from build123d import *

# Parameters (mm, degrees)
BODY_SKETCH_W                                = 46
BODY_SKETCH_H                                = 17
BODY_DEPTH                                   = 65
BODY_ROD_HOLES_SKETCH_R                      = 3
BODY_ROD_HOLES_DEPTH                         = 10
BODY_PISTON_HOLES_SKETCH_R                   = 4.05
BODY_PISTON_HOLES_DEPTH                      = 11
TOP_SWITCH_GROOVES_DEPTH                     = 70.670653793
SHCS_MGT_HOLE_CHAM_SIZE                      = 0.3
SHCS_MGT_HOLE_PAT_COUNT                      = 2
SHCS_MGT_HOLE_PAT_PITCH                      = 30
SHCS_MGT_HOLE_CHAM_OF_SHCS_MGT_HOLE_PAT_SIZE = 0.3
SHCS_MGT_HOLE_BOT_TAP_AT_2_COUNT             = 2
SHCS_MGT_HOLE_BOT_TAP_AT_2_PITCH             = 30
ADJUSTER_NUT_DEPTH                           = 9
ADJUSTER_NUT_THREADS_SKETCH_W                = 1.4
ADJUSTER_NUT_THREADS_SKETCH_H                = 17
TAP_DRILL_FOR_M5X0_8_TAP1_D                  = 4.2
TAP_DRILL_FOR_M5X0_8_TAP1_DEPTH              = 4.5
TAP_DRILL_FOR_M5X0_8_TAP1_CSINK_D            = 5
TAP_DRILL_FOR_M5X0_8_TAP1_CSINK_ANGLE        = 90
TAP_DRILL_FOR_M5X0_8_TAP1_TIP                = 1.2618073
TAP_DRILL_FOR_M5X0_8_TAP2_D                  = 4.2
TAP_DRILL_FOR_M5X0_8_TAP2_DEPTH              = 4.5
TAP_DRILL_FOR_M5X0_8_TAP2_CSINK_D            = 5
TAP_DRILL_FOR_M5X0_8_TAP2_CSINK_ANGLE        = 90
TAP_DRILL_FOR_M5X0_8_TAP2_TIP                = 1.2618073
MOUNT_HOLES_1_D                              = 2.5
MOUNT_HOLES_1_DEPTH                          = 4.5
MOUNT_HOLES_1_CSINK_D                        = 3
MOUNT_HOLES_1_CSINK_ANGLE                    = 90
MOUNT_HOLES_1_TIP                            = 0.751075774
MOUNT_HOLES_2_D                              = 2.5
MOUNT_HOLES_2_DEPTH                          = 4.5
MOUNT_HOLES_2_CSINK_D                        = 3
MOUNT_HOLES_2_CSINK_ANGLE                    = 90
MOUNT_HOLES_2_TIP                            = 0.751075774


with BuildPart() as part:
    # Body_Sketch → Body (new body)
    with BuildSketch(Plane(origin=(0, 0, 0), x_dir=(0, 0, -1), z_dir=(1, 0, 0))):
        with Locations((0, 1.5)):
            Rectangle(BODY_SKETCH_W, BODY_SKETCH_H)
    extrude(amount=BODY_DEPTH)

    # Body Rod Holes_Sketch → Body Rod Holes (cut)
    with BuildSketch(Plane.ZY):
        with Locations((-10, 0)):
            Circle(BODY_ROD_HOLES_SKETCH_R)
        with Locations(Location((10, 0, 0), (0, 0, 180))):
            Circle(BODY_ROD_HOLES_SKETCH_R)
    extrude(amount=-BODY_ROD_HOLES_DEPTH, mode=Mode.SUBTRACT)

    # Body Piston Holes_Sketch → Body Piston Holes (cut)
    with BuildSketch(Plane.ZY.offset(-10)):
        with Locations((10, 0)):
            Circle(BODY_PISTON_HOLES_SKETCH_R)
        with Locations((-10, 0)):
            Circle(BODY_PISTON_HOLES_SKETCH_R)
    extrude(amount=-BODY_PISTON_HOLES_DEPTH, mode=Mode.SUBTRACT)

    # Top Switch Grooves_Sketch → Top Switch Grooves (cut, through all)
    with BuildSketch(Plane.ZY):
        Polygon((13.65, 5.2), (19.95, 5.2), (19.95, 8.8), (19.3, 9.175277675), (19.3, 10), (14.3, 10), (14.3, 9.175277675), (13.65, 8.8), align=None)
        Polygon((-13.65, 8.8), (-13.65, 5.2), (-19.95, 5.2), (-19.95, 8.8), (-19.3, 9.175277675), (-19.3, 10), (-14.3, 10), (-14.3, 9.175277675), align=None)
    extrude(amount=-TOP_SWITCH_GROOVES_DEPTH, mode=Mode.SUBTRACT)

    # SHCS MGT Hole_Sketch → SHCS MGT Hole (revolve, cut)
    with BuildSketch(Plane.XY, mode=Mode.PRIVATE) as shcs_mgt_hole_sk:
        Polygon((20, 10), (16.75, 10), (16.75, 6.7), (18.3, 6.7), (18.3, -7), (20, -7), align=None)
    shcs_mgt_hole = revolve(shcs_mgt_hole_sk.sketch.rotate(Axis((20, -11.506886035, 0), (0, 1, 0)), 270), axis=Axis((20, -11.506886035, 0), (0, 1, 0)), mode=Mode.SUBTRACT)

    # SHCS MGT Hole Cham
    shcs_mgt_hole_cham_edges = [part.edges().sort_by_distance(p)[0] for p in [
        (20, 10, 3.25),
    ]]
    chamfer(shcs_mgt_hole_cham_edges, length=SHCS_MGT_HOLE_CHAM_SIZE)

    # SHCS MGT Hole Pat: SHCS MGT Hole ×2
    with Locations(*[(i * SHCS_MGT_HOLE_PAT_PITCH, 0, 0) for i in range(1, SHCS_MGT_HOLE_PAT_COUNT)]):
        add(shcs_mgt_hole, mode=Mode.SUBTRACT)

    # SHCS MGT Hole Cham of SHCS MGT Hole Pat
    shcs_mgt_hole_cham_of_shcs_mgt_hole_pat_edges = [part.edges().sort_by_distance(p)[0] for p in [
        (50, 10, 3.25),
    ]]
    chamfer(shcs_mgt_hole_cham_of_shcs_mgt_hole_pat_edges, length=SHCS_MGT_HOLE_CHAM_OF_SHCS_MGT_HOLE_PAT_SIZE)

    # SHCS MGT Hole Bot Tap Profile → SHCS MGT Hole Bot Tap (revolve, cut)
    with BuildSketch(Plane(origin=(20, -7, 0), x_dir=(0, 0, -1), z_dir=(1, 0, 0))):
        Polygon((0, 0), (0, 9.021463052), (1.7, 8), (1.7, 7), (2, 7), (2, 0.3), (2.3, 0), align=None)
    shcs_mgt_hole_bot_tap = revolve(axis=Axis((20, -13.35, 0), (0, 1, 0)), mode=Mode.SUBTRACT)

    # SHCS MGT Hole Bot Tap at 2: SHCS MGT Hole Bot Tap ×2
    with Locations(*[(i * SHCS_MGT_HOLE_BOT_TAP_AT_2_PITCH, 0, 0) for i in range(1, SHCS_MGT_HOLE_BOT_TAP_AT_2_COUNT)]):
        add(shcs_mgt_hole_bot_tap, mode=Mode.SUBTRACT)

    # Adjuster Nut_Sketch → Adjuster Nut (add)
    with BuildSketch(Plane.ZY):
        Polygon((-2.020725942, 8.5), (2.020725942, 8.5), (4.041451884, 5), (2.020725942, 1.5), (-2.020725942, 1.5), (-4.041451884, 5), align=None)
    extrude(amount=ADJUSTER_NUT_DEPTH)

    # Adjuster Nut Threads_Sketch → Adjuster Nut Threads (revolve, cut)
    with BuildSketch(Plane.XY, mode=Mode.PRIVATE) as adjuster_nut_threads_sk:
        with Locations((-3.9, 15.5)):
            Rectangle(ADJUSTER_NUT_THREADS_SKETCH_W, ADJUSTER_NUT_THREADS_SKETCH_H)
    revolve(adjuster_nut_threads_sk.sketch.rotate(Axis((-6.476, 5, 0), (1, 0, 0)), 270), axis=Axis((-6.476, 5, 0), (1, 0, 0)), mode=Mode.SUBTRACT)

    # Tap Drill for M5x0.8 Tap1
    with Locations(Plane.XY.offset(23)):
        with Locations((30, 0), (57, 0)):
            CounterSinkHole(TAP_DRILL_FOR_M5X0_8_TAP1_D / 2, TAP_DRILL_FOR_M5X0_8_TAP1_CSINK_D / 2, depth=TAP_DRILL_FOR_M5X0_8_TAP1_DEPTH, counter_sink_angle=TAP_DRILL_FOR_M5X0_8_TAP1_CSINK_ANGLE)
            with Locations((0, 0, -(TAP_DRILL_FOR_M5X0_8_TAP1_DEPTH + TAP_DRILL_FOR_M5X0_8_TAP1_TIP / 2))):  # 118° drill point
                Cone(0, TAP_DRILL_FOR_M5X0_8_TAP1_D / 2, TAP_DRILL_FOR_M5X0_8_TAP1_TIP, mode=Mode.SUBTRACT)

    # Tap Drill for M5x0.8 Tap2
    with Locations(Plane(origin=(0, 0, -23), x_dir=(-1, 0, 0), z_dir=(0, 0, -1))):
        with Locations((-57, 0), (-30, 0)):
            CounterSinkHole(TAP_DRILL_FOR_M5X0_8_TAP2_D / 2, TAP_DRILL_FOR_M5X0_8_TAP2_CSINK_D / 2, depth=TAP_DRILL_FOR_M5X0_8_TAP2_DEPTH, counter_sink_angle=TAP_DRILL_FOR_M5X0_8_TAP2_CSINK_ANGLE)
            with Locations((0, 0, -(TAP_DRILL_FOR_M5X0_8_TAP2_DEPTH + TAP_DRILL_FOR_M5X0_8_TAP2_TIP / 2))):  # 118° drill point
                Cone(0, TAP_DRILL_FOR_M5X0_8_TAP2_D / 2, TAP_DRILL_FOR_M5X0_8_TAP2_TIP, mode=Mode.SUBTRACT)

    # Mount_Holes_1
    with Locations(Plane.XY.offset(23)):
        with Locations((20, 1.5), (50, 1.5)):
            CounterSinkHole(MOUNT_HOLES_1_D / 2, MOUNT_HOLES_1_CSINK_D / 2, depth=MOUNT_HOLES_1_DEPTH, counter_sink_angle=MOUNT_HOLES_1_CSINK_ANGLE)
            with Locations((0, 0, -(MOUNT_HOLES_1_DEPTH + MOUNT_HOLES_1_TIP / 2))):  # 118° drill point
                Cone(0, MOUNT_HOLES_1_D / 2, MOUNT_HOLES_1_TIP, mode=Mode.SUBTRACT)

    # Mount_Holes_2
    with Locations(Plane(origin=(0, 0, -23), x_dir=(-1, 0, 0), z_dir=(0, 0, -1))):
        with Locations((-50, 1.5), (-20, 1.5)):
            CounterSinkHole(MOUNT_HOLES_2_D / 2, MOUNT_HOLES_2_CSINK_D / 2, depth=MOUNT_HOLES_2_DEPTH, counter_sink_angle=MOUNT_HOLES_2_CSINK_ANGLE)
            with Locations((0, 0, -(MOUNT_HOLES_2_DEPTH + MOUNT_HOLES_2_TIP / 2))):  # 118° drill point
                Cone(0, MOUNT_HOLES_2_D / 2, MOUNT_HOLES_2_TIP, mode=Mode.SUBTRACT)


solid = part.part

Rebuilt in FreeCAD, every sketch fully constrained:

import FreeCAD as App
import Part
import Sketcher
Q = App.Units.Quantity


def edges_at(feature, points):
    """Names of the edges that pass closest to the given points."""
    edges = feature.Shape.Edges
    near = lambda p: min(range(len(edges)), key=lambda i: edges[i].distToShape(Part.Vertex(*p))[0])
    return sorted({f"Edge{near(p) + 1}" for p in points})


def add_polygon(sketch, points):
    """Adds a closed chain of lines whose ends are joined by coincident constraints."""
    first, n = sketch.GeometryCount, len(points)
    for a, b in zip(points, points[1:] + points[:1]):
        sketch.addGeometry(Part.LineSegment(App.Vector(*a, 0), App.Vector(*b, 0)), False)
    for i in range(n):
        sketch.addConstraint(Sketcher.Constraint("Coincident", first + i, 2, first + (i + 1) % n, 1))

doc = App.newDocument("Part")
body = doc.addObject("PartDesign::Body", "Body")

# Sketch on YZ plane
sketch1 = body.newObject("Sketcher::SketchObject", "Sketch")
sketch1.AttachmentSupport = (doc.getObject("YZ_Plane"), [""])
sketch1.MapMode = "FlatFace"
add_polygon(sketch1, [(10, 23), (-7, 23), (-7, -23), (10, -23)])  # lines 0-3
sketch1.addConstraint(Sketcher.Constraint("Horizontal", 0))
sketch1.addConstraint(Sketcher.Constraint("Vertical", 1))
sketch1.addConstraint(Sketcher.Constraint("Horizontal", 2))
sketch1.addConstraint(Sketcher.Constraint("Vertical", 3))
sketch1.addConstraint(Sketcher.Constraint("DistanceX", 0, 2, 0, 1, Q("17 mm")))
sketch1.addConstraint(Sketcher.Constraint("DistanceY", 1, 2, 1, 1, Q("46 mm")))
sketch1.addConstraint(Sketcher.Constraint("DistanceX", 0, 2, -1, 1, Q("7 mm")))
sketch1.addConstraint(Sketcher.Constraint("DistanceY", -1, 1, 0, 2, Q("23 mm")))
pad1 = body.newObject("PartDesign::Pad", "Pad")
pad1.Profile = sketch1
pad1.Length = 65

# Sketch on YZ plane
sketch2 = body.newObject("Sketcher::SketchObject", "Sketch001")
sketch2.AttachmentSupport = (doc.getObject("YZ_Plane"), [""])
sketch2.MapMode = "FlatFace"
sketch2.addGeometry(Part.Circle(App.Vector(0, -10, 0), App.Vector(0, 0, 1), 3), False)
sketch2.addGeometry(Part.Circle(App.Vector(0, 10, 0), App.Vector(0, 0, 1), 3), False)
sketch2.addConstraint(Sketcher.Constraint("Equal", 0, 1))
sketch2.addConstraint(Sketcher.Constraint("Symmetric", 0, 3, 1, 3, -1, 1))
sketch2.addConstraint(Sketcher.Constraint("PointOnObject", 0, 3, -2))
sketch2.addConstraint(Sketcher.Constraint("Diameter", 0, Q("6 mm")))
sketch2.addConstraint(Sketcher.Constraint("DistanceY", 0, 3, -1, 1, Q("10 mm")))
pocket1 = body.newObject("PartDesign::Pocket", "Pocket")
pocket1.Profile = sketch2
pocket1.Length = 10
pocket1.Reversed = True

# Sketch on YZ plane
sketch3 = body.newObject("Sketcher::SketchObject", "Sketch002")
sketch3.AttachmentSupport = (doc.getObject("YZ_Plane"), [""])
sketch3.MapMode = "FlatFace"
sketch3.AttachmentOffset = App.Placement(App.Vector(0, 0, 10), App.Rotation())
sketch3.addGeometry(Part.Circle(App.Vector(0, 10, 0), App.Vector(0, 0, 1), 4), False)
sketch3.addGeometry(Part.Circle(App.Vector(0, -10, 0), App.Vector(0, 0, 1), 4), False)
sketch3.addConstraint(Sketcher.Constraint("Equal", 0, 1))
sketch3.addConstraint(Sketcher.Constraint("Symmetric", 0, 3, 1, 3, -1, 1))
sketch3.addConstraint(Sketcher.Constraint("PointOnObject", 0, 3, -2))
sketch3.addConstraint(Sketcher.Constraint("Diameter", 0, Q("8.1 mm")))
sketch3.addConstraint(Sketcher.Constraint("DistanceY", -1, 1, 0, 3, Q("10 mm")))
pocket2 = body.newObject("PartDesign::Pocket", "Pocket001")
pocket2.Profile = sketch3
pocket2.Length = 11
pocket2.Reversed = True

# Sketch on YZ plane
sketch4 = body.newObject("Sketcher::SketchObject", "Sketch003")
sketch4.AttachmentSupport = (doc.getObject("YZ_Plane"), [""])
sketch4.MapMode = "FlatFace"
add_polygon(sketch4, [(5.2, 13.7), (5.2, 19.9), (8.8, 19.9), (9.2, 19.3), (10, 19.3), (10, 14.3), (9.2, 14.3), (8.8, 13.7)])  # lines 0-7
add_polygon(sketch4, [(5.2, -13.7), (8.8, -13.7), (9.2, -14.3), (10, -14.3), (10, -19.3), (9.2, -19.3), (8.8, -19.9), (5.2, -19.9)])  # lines 8-15
sketch4.addConstraint(Sketcher.Constraint("Vertical", 0))
sketch4.addConstraint(Sketcher.Constraint("Horizontal", 1))
sketch4.addConstraint(Sketcher.Constraint("Horizontal", 3))
sketch4.addConstraint(Sketcher.Constraint("Vertical", 4))
sketch4.addConstraint(Sketcher.Constraint("Horizontal", 5))
sketch4.addConstraint(Sketcher.Constraint("Horizontal", 7))
sketch4.addConstraint(Sketcher.Constraint("Horizontal", 8))
sketch4.addConstraint(Sketcher.Constraint("Horizontal", 10))
sketch4.addConstraint(Sketcher.Constraint("Vertical", 11))
sketch4.addConstraint(Sketcher.Constraint("Horizontal", 12))
sketch4.addConstraint(Sketcher.Constraint("Horizontal", 14))
sketch4.addConstraint(Sketcher.Constraint("Vertical", 15))
sketch4.addConstraint(Sketcher.Constraint("Symmetric", 6, 2, 8, 2, -1))
sketch4.addConstraint(Sketcher.Constraint("Symmetric", 5, 2, 9, 2, -1))
sketch4.addConstraint(Sketcher.Constraint("Symmetric", 3, 2, 11, 2, -1))
sketch4.addConstraint(Sketcher.Constraint("Symmetric", 1, 2, 13, 2, -1))
sketch4.addConstraint(Sketcher.Constraint("Parallel", 2, 9))
sketch4.addConstraint(Sketcher.Constraint("Parallel", 6, 13))
sketch4.addConstraint(Sketcher.Constraint("Vertical", 2, 2, 5, 2))
sketch4.addConstraint(Sketcher.Constraint("Vertical", 1, 2, 6, 2))
sketch4.addConstraint(Sketcher.Constraint("Vertical", 7, 2, 14, 2))
sketch4.addConstraint(Sketcher.Constraint("DistanceY", 4, 2, 4, 1, Q("5 mm")))
sketch4.addConstraint(Sketcher.Constraint("Angle", 2, Q("-60 deg")))
sketch4.addConstraint(Sketcher.Constraint("DistanceX", 1, 1, 1, 2, Q("3.6 mm")))
sketch4.addConstraint(Sketcher.Constraint("DistanceY", 0, 1, 0, 2, Q("6.3 mm")))
sketch4.addConstraint(Sketcher.Constraint("DistanceX", -1, 1, 3, 2, Q("10 mm")))
sketch4.addConstraint(Sketcher.Constraint("DistanceX", -1, 1, 0, 2, Q("5.2 mm")))
sketch4.addConstraint(Sketcher.Constraint("DistanceY", -1, 1, 2, 2, Q("19.3 mm")))
pocket3 = body.newObject("PartDesign::Pocket", "Pocket002")
pocket3.Profile = sketch4
pocket3.Type = "ThroughAll"
pocket3.Reversed = True

# Sketch on XY plane
sketch5 = body.newObject("Sketcher::SketchObject", "Sketch004")
sketch5.AttachmentSupport = (doc.getObject("XY_Plane"), [""])
sketch5.MapMode = "FlatFace"
add_polygon(sketch5, [(20, 10), (16.8, 10), (16.8, 6.7), (18.3, 6.7), (18.3, -7), (20, -7)])  # lines 0-5
sketch5.addGeometry(Part.LineSegment(App.Vector(20, -7, 0), App.Vector(20, 10, 0)), True)  # axis
sketch5.addConstraint(Sketcher.Constraint("Horizontal", 0))
sketch5.addConstraint(Sketcher.Constraint("Vertical", 1))
sketch5.addConstraint(Sketcher.Constraint("Horizontal", 2))
sketch5.addConstraint(Sketcher.Constraint("Vertical", 3))
sketch5.addConstraint(Sketcher.Constraint("Horizontal", 4))
sketch5.addConstraint(Sketcher.Constraint("Vertical", 5))
sketch5.addConstraint(Sketcher.Constraint("Vertical", 6))
sketch5.addConstraint(Sketcher.Constraint("Coincident", 6, 1, 4, 2))
sketch5.addConstraint(Sketcher.Constraint("Horizontal", 0, 2, 6, 2))
sketch5.addConstraint(Sketcher.Constraint("DistanceY", 5, 1, 5, 2, Q("17 mm")))
sketch5.addConstraint(Sketcher.Constraint("DistanceX", 4, 1, 4, 2, Q("1.7 mm")))
sketch5.addConstraint(Sketcher.Constraint("DistanceY", 1, 2, 1, 1, Q("3.3 mm")))
sketch5.addConstraint(Sketcher.Constraint("DistanceY", -1, 1, 0, 2, Q("10 mm")))
sketch5.addConstraint(Sketcher.Constraint("DistanceX", -1, 1, 4, 2, Q("20 mm")))
sketch5.addConstraint(Sketcher.Constraint("DistanceX", 0, 2, 0, 1, Q("3.25 mm")))
groove = body.newObject("PartDesign::Groove", "Groove")
groove.Profile = sketch5
groove.ReferenceAxis = (sketch5, ["Axis0"])
groove.Angle = 360
doc.recompute()

chamfer = body.newObject("PartDesign::Chamfer", "Chamfer")
chamfer.Base = (groove, edges_at(groove, [(20, 10, 3.25)]))
chamfer.Size = 0.3
doc.recompute()

linearpattern = body.newObject("PartDesign::LinearPattern", "LinearPattern")
linearpattern.Originals = [groove]
linearpattern.Direction = (doc.getObject("X_Axis"), [""])
linearpattern.Mode = "offset"
linearpattern.Offset = 30
linearpattern.Occurrences = 2
body.Tip = linearpattern
doc.recompute()

chamfer2 = body.newObject("PartDesign::Chamfer", "Chamfer001")
chamfer2.Base = (linearpattern, edges_at(linearpattern, [(50, 10, 3.25)]))
chamfer2.Size = 0.3

# Sketch on YZ plane
sketch6 = body.newObject("Sketcher::SketchObject", "Sketch005")
sketch6.AttachmentSupport = (doc.getObject("YZ_Plane"), [""])
sketch6.MapMode = "FlatFace"
sketch6.AttachmentOffset = App.Placement(App.Vector(0, 0, 20), App.Rotation())
add_polygon(sketch6, [(2.02, 0), (-7, 0), (-7, -2.3), (-6.7, -2), (0, -2), (0, -1.7), (1, -1.7)])  # lines 0-6
sketch6.addConstraint(Sketcher.Constraint("Horizontal", 0))
sketch6.addConstraint(Sketcher.Constraint("Vertical", 1))
sketch6.addConstraint(Sketcher.Constraint("Horizontal", 3))
sketch6.addConstraint(Sketcher.Constraint("Vertical", 4))
sketch6.addConstraint(Sketcher.Constraint("Horizontal", 5))
sketch6.addConstraint(Sketcher.Constraint("PointOnObject", 0, 2, -1))
sketch6.addConstraint(Sketcher.Constraint("PointOnObject", 3, 2, -2))
sketch6.addConstraint(Sketcher.Constraint("DistanceX", 5, 1, 5, 2, Q("1 mm")))
sketch6.addConstraint(Sketcher.Constraint("Angle", 2, Q("45 deg")))
sketch6.addConstraint(Sketcher.Constraint("Angle", 6, Q("59 deg")))
sketch6.addConstraint(Sketcher.Constraint("DistanceX", 3, 1, 3, 2, Q("6.7 mm")))
sketch6.addConstraint(Sketcher.Constraint("DistanceY", 1, 2, 1, 1, Q("2.3 mm")))
sketch6.addConstraint(Sketcher.Constraint("DistanceY", 4, 1, 4, 2, Q("0.3 mm")))
sketch6.addConstraint(Sketcher.Constraint("DistanceX", 0, 2, -1, 1, Q("7 mm")))
groove2 = body.newObject("PartDesign::Groove", "Groove001")
groove2.Profile = sketch6
groove2.ReferenceAxis = (sketch6, ["H_Axis"])
groove2.Angle = 360
doc.recompute()

linearpattern2 = body.newObject("PartDesign::LinearPattern", "LinearPattern001")
linearpattern2.Originals = [groove2]
linearpattern2.Direction = (doc.getObject("X_Axis"), [""])
linearpattern2.Mode = "offset"
linearpattern2.Offset = 30
linearpattern2.Occurrences = 2
body.Tip = linearpattern2

# Sketch on YZ plane
sketch7 = body.newObject("Sketcher::SketchObject", "Sketch006")
sketch7.AttachmentSupport = (doc.getObject("YZ_Plane"), [""])
sketch7.MapMode = "FlatFace"
add_polygon(sketch7, [(8.5, 2), (8.5, -2), (5, -4), (1.5, -2), (1.5, 2), (5, 4)])  # lines 0-5
sketch7.addConstraint(Sketcher.Constraint("Vertical", 0))
sketch7.addConstraint(Sketcher.Constraint("Vertical", 3))
sketch7.addConstraint(Sketcher.Constraint("Symmetric", 1, 2, 4, 2, -1))
sketch7.addConstraint(Sketcher.Constraint("Parallel", 1, 4))
sketch7.addConstraint(Sketcher.Constraint("Parallel", 2, 5))
sketch7.addConstraint(Sketcher.Constraint("Horizontal", 0, 2, 2, 2))
sketch7.addConstraint(Sketcher.Constraint("Horizontal", 3, 2, 5, 2))
sketch7.addConstraint(Sketcher.Constraint("Angle", 1, Q("-150 deg")))
sketch7.addConstraint(Sketcher.Constraint("DistanceX", -1, 1, 1, 2, Q("5 mm")))
sketch7.addConstraint(Sketcher.Constraint("DistanceX", 2, 2, 0, 2, Q("7 mm")))
sketch7.addConstraint(Sketcher.Constraint("DistanceY", 0, 2, 0, 1, Q("4.041452 mm")))
pad2 = body.newObject("PartDesign::Pad", "Pad001")
pad2.Profile = sketch7
pad2.Length = 9
pad2.Reversed = True

# Sketch on XY plane
sketch8 = body.newObject("Sketcher::SketchObject", "Sketch007")
sketch8.AttachmentSupport = (doc.getObject("XY_Plane"), [""])
sketch8.MapMode = "FlatFace"
add_polygon(sketch8, [(-4.6, 24), (-4.6, 7), (-3.2, 7), (-3.2, 24)])  # lines 0-3
sketch8.addGeometry(Part.LineSegment(App.Vector(-4.6, 5, 0), App.Vector(-3.2, 5, 0)), True)  # axis
sketch8.addConstraint(Sketcher.Constraint("Vertical", 0))
sketch8.addConstraint(Sketcher.Constraint("Horizontal", 1))
sketch8.addConstraint(Sketcher.Constraint("Vertical", 2))
sketch8.addConstraint(Sketcher.Constraint("Horizontal", 3))
sketch8.addConstraint(Sketcher.Constraint("Horizontal", 4))
sketch8.addConstraint(Sketcher.Constraint("Vertical", 3, 2, 4, 1))
sketch8.addConstraint(Sketcher.Constraint("Vertical", 2, 2, 4, 2))
sketch8.addConstraint(Sketcher.Constraint("DistanceY", 0, 2, 0, 1, Q("17 mm")))
sketch8.addConstraint(Sketcher.Constraint("DistanceX", 1, 1, 1, 2, Q("1.4 mm")))
sketch8.addConstraint(Sketcher.Constraint("DistanceY", -1, 1, 0, 2, Q("7 mm")))
sketch8.addConstraint(Sketcher.Constraint("DistanceY", -1, 1, 4, 1, Q("5 mm")))
sketch8.addConstraint(Sketcher.Constraint("DistanceX", 0, 2, -1, 1, Q("4.6 mm")))
groove3 = body.newObject("PartDesign::Groove", "Groove002")
groove3.Profile = sketch8
groove3.ReferenceAxis = (sketch8, ["Axis0"])
groove3.Angle = 360

# Sketch on XY plane
sketch9 = body.newObject("Sketcher::SketchObject", "Sketch008")
sketch9.AttachmentSupport = (doc.getObject("XY_Plane"), [""])
sketch9.MapMode = "FlatFace"
sketch9.AttachmentOffset = App.Placement(App.Vector(0, 0, 23), App.Rotation())
sketch9.addGeometry(Part.Circle(App.Vector(30, 0, 0), App.Vector(0, 0, 1), 2.1), False)
sketch9.addGeometry(Part.Circle(App.Vector(57, 0, 0), App.Vector(0, 0, 1), 2.1), False)
sketch9.addConstraint(Sketcher.Constraint("Equal", 0, 1))
sketch9.addConstraint(Sketcher.Constraint("PointOnObject", 0, 3, -1))
sketch9.addConstraint(Sketcher.Constraint("PointOnObject", 1, 3, -1))
sketch9.addConstraint(Sketcher.Constraint("Diameter", 0, Q("4.2 mm")))
sketch9.addConstraint(Sketcher.Constraint("DistanceX", -1, 1, 0, 3, Q("30 mm")))
sketch9.addConstraint(Sketcher.Constraint("DistanceX", -1, 1, 1, 3, Q("57 mm")))
doc.recompute()
hole = body.newObject("PartDesign::Hole", "Hole")
hole.Profile = sketch9
hole.ThreadType = "None"
hole.Diameter = 4.2
hole.DepthType = "Dimension"
hole.Depth = 4.5
hole.DrillPoint = "Angled"
hole.DrillPointAngle = 118
hole.HoleCutType = "Countersink"
hole.HoleCutDiameter = 5
hole.HoleCutCountersinkAngle = 90

# Sketch on XY plane
sketch10 = body.newObject("Sketcher::SketchObject", "Sketch009")
sketch10.AttachmentSupport = (doc.getObject("XY_Plane"), [""])
sketch10.MapMode = "FlatFace"
sketch10.AttachmentOffset = App.Placement(App.Vector(0, 0, -23), App.Rotation())
sketch10.addGeometry(Part.Circle(App.Vector(57, 0, 0), App.Vector(0, 0, 1), 2.1), False)
sketch10.addGeometry(Part.Circle(App.Vector(30, 0, 0), App.Vector(0, 0, 1), 2.1), False)
sketch10.addConstraint(Sketcher.Constraint("Equal", 0, 1))
sketch10.addConstraint(Sketcher.Constraint("PointOnObject", 0, 3, -1))
sketch10.addConstraint(Sketcher.Constraint("PointOnObject", 1, 3, -1))
sketch10.addConstraint(Sketcher.Constraint("Diameter", 0, Q("4.2 mm")))
sketch10.addConstraint(Sketcher.Constraint("DistanceX", -1, 1, 0, 3, Q("57 mm")))
sketch10.addConstraint(Sketcher.Constraint("DistanceX", -1, 1, 1, 3, Q("30 mm")))
doc.recompute()
hole2 = body.newObject("PartDesign::Hole", "Hole001")
hole2.Profile = sketch10
hole2.ThreadType = "None"
hole2.Diameter = 4.2
hole2.DepthType = "Dimension"
hole2.Depth = 4.5
hole2.DrillPoint = "Angled"
hole2.DrillPointAngle = 118
hole2.HoleCutType = "Countersink"
hole2.HoleCutDiameter = 5
hole2.HoleCutCountersinkAngle = 90
hole2.Reversed = True

# Sketch on XY plane
sketch11 = body.newObject("Sketcher::SketchObject", "Sketch010")
sketch11.AttachmentSupport = (doc.getObject("XY_Plane"), [""])
sketch11.MapMode = "FlatFace"
sketch11.AttachmentOffset = App.Placement(App.Vector(0, 0, 23), App.Rotation())
sketch11.addGeometry(Part.Circle(App.Vector(20, 1.5, 0), App.Vector(0, 0, 1), 1.2), False)
sketch11.addGeometry(Part.Circle(App.Vector(50, 1.5, 0), App.Vector(0, 0, 1), 1.2), False)
sketch11.addConstraint(Sketcher.Constraint("Equal", 0, 1))
sketch11.addConstraint(Sketcher.Constraint("Horizontal", 0, 3, 1, 3))
sketch11.addConstraint(Sketcher.Constraint("Diameter", 0, Q("2.5 mm")))
sketch11.addConstraint(Sketcher.Constraint("DistanceX", -1, 1, 0, 3, Q("20 mm")))
sketch11.addConstraint(Sketcher.Constraint("DistanceX", -1, 1, 1, 3, Q("50 mm")))
sketch11.addConstraint(Sketcher.Constraint("DistanceY", -1, 1, 0, 3, Q("1.5 mm")))
doc.recompute()
hole3 = body.newObject("PartDesign::Hole", "Hole002")
hole3.Profile = sketch11
hole3.ThreadType = "None"
hole3.Diameter = 2.5
hole3.DepthType = "Dimension"
hole3.Depth = 4.5
hole3.DrillPoint = "Angled"
hole3.DrillPointAngle = 118
hole3.HoleCutType = "Countersink"
hole3.HoleCutDiameter = 3
hole3.HoleCutCountersinkAngle = 90

# Sketch on XY plane
sketch12 = body.newObject("Sketcher::SketchObject", "Sketch011")
sketch12.AttachmentSupport = (doc.getObject("XY_Plane"), [""])
sketch12.MapMode = "FlatFace"
sketch12.AttachmentOffset = App.Placement(App.Vector(0, 0, -23), App.Rotation())
sketch12.addGeometry(Part.Circle(App.Vector(50, 1.5, 0), App.Vector(0, 0, 1), 1.2), False)
sketch12.addGeometry(Part.Circle(App.Vector(20, 1.5, 0), App.Vector(0, 0, 1), 1.2), False)
sketch12.addConstraint(Sketcher.Constraint("Equal", 0, 1))
sketch12.addConstraint(Sketcher.Constraint("Horizontal", 0, 3, 1, 3))
sketch12.addConstraint(Sketcher.Constraint("Diameter", 0, Q("2.5 mm")))
sketch12.addConstraint(Sketcher.Constraint("DistanceX", -1, 1, 0, 3, Q("50 mm")))
sketch12.addConstraint(Sketcher.Constraint("DistanceX", -1, 1, 1, 3, Q("20 mm")))
sketch12.addConstraint(Sketcher.Constraint("DistanceY", -1, 1, 0, 3, Q("1.5 mm")))
doc.recompute()
hole4 = body.newObject("PartDesign::Hole", "Hole003")
hole4.Profile = sketch12
hole4.ThreadType = "None"
hole4.Diameter = 2.5
hole4.DepthType = "Dimension"
hole4.Depth = 4.5
hole4.DrillPoint = "Angled"
hole4.DrillPointAngle = 118
hole4.HoleCutType = "Countersink"
hole4.HoleCutDiameter = 3
hole4.HoleCutCountersinkAngle = 90
hole4.Reversed = True

doc.recompute()
